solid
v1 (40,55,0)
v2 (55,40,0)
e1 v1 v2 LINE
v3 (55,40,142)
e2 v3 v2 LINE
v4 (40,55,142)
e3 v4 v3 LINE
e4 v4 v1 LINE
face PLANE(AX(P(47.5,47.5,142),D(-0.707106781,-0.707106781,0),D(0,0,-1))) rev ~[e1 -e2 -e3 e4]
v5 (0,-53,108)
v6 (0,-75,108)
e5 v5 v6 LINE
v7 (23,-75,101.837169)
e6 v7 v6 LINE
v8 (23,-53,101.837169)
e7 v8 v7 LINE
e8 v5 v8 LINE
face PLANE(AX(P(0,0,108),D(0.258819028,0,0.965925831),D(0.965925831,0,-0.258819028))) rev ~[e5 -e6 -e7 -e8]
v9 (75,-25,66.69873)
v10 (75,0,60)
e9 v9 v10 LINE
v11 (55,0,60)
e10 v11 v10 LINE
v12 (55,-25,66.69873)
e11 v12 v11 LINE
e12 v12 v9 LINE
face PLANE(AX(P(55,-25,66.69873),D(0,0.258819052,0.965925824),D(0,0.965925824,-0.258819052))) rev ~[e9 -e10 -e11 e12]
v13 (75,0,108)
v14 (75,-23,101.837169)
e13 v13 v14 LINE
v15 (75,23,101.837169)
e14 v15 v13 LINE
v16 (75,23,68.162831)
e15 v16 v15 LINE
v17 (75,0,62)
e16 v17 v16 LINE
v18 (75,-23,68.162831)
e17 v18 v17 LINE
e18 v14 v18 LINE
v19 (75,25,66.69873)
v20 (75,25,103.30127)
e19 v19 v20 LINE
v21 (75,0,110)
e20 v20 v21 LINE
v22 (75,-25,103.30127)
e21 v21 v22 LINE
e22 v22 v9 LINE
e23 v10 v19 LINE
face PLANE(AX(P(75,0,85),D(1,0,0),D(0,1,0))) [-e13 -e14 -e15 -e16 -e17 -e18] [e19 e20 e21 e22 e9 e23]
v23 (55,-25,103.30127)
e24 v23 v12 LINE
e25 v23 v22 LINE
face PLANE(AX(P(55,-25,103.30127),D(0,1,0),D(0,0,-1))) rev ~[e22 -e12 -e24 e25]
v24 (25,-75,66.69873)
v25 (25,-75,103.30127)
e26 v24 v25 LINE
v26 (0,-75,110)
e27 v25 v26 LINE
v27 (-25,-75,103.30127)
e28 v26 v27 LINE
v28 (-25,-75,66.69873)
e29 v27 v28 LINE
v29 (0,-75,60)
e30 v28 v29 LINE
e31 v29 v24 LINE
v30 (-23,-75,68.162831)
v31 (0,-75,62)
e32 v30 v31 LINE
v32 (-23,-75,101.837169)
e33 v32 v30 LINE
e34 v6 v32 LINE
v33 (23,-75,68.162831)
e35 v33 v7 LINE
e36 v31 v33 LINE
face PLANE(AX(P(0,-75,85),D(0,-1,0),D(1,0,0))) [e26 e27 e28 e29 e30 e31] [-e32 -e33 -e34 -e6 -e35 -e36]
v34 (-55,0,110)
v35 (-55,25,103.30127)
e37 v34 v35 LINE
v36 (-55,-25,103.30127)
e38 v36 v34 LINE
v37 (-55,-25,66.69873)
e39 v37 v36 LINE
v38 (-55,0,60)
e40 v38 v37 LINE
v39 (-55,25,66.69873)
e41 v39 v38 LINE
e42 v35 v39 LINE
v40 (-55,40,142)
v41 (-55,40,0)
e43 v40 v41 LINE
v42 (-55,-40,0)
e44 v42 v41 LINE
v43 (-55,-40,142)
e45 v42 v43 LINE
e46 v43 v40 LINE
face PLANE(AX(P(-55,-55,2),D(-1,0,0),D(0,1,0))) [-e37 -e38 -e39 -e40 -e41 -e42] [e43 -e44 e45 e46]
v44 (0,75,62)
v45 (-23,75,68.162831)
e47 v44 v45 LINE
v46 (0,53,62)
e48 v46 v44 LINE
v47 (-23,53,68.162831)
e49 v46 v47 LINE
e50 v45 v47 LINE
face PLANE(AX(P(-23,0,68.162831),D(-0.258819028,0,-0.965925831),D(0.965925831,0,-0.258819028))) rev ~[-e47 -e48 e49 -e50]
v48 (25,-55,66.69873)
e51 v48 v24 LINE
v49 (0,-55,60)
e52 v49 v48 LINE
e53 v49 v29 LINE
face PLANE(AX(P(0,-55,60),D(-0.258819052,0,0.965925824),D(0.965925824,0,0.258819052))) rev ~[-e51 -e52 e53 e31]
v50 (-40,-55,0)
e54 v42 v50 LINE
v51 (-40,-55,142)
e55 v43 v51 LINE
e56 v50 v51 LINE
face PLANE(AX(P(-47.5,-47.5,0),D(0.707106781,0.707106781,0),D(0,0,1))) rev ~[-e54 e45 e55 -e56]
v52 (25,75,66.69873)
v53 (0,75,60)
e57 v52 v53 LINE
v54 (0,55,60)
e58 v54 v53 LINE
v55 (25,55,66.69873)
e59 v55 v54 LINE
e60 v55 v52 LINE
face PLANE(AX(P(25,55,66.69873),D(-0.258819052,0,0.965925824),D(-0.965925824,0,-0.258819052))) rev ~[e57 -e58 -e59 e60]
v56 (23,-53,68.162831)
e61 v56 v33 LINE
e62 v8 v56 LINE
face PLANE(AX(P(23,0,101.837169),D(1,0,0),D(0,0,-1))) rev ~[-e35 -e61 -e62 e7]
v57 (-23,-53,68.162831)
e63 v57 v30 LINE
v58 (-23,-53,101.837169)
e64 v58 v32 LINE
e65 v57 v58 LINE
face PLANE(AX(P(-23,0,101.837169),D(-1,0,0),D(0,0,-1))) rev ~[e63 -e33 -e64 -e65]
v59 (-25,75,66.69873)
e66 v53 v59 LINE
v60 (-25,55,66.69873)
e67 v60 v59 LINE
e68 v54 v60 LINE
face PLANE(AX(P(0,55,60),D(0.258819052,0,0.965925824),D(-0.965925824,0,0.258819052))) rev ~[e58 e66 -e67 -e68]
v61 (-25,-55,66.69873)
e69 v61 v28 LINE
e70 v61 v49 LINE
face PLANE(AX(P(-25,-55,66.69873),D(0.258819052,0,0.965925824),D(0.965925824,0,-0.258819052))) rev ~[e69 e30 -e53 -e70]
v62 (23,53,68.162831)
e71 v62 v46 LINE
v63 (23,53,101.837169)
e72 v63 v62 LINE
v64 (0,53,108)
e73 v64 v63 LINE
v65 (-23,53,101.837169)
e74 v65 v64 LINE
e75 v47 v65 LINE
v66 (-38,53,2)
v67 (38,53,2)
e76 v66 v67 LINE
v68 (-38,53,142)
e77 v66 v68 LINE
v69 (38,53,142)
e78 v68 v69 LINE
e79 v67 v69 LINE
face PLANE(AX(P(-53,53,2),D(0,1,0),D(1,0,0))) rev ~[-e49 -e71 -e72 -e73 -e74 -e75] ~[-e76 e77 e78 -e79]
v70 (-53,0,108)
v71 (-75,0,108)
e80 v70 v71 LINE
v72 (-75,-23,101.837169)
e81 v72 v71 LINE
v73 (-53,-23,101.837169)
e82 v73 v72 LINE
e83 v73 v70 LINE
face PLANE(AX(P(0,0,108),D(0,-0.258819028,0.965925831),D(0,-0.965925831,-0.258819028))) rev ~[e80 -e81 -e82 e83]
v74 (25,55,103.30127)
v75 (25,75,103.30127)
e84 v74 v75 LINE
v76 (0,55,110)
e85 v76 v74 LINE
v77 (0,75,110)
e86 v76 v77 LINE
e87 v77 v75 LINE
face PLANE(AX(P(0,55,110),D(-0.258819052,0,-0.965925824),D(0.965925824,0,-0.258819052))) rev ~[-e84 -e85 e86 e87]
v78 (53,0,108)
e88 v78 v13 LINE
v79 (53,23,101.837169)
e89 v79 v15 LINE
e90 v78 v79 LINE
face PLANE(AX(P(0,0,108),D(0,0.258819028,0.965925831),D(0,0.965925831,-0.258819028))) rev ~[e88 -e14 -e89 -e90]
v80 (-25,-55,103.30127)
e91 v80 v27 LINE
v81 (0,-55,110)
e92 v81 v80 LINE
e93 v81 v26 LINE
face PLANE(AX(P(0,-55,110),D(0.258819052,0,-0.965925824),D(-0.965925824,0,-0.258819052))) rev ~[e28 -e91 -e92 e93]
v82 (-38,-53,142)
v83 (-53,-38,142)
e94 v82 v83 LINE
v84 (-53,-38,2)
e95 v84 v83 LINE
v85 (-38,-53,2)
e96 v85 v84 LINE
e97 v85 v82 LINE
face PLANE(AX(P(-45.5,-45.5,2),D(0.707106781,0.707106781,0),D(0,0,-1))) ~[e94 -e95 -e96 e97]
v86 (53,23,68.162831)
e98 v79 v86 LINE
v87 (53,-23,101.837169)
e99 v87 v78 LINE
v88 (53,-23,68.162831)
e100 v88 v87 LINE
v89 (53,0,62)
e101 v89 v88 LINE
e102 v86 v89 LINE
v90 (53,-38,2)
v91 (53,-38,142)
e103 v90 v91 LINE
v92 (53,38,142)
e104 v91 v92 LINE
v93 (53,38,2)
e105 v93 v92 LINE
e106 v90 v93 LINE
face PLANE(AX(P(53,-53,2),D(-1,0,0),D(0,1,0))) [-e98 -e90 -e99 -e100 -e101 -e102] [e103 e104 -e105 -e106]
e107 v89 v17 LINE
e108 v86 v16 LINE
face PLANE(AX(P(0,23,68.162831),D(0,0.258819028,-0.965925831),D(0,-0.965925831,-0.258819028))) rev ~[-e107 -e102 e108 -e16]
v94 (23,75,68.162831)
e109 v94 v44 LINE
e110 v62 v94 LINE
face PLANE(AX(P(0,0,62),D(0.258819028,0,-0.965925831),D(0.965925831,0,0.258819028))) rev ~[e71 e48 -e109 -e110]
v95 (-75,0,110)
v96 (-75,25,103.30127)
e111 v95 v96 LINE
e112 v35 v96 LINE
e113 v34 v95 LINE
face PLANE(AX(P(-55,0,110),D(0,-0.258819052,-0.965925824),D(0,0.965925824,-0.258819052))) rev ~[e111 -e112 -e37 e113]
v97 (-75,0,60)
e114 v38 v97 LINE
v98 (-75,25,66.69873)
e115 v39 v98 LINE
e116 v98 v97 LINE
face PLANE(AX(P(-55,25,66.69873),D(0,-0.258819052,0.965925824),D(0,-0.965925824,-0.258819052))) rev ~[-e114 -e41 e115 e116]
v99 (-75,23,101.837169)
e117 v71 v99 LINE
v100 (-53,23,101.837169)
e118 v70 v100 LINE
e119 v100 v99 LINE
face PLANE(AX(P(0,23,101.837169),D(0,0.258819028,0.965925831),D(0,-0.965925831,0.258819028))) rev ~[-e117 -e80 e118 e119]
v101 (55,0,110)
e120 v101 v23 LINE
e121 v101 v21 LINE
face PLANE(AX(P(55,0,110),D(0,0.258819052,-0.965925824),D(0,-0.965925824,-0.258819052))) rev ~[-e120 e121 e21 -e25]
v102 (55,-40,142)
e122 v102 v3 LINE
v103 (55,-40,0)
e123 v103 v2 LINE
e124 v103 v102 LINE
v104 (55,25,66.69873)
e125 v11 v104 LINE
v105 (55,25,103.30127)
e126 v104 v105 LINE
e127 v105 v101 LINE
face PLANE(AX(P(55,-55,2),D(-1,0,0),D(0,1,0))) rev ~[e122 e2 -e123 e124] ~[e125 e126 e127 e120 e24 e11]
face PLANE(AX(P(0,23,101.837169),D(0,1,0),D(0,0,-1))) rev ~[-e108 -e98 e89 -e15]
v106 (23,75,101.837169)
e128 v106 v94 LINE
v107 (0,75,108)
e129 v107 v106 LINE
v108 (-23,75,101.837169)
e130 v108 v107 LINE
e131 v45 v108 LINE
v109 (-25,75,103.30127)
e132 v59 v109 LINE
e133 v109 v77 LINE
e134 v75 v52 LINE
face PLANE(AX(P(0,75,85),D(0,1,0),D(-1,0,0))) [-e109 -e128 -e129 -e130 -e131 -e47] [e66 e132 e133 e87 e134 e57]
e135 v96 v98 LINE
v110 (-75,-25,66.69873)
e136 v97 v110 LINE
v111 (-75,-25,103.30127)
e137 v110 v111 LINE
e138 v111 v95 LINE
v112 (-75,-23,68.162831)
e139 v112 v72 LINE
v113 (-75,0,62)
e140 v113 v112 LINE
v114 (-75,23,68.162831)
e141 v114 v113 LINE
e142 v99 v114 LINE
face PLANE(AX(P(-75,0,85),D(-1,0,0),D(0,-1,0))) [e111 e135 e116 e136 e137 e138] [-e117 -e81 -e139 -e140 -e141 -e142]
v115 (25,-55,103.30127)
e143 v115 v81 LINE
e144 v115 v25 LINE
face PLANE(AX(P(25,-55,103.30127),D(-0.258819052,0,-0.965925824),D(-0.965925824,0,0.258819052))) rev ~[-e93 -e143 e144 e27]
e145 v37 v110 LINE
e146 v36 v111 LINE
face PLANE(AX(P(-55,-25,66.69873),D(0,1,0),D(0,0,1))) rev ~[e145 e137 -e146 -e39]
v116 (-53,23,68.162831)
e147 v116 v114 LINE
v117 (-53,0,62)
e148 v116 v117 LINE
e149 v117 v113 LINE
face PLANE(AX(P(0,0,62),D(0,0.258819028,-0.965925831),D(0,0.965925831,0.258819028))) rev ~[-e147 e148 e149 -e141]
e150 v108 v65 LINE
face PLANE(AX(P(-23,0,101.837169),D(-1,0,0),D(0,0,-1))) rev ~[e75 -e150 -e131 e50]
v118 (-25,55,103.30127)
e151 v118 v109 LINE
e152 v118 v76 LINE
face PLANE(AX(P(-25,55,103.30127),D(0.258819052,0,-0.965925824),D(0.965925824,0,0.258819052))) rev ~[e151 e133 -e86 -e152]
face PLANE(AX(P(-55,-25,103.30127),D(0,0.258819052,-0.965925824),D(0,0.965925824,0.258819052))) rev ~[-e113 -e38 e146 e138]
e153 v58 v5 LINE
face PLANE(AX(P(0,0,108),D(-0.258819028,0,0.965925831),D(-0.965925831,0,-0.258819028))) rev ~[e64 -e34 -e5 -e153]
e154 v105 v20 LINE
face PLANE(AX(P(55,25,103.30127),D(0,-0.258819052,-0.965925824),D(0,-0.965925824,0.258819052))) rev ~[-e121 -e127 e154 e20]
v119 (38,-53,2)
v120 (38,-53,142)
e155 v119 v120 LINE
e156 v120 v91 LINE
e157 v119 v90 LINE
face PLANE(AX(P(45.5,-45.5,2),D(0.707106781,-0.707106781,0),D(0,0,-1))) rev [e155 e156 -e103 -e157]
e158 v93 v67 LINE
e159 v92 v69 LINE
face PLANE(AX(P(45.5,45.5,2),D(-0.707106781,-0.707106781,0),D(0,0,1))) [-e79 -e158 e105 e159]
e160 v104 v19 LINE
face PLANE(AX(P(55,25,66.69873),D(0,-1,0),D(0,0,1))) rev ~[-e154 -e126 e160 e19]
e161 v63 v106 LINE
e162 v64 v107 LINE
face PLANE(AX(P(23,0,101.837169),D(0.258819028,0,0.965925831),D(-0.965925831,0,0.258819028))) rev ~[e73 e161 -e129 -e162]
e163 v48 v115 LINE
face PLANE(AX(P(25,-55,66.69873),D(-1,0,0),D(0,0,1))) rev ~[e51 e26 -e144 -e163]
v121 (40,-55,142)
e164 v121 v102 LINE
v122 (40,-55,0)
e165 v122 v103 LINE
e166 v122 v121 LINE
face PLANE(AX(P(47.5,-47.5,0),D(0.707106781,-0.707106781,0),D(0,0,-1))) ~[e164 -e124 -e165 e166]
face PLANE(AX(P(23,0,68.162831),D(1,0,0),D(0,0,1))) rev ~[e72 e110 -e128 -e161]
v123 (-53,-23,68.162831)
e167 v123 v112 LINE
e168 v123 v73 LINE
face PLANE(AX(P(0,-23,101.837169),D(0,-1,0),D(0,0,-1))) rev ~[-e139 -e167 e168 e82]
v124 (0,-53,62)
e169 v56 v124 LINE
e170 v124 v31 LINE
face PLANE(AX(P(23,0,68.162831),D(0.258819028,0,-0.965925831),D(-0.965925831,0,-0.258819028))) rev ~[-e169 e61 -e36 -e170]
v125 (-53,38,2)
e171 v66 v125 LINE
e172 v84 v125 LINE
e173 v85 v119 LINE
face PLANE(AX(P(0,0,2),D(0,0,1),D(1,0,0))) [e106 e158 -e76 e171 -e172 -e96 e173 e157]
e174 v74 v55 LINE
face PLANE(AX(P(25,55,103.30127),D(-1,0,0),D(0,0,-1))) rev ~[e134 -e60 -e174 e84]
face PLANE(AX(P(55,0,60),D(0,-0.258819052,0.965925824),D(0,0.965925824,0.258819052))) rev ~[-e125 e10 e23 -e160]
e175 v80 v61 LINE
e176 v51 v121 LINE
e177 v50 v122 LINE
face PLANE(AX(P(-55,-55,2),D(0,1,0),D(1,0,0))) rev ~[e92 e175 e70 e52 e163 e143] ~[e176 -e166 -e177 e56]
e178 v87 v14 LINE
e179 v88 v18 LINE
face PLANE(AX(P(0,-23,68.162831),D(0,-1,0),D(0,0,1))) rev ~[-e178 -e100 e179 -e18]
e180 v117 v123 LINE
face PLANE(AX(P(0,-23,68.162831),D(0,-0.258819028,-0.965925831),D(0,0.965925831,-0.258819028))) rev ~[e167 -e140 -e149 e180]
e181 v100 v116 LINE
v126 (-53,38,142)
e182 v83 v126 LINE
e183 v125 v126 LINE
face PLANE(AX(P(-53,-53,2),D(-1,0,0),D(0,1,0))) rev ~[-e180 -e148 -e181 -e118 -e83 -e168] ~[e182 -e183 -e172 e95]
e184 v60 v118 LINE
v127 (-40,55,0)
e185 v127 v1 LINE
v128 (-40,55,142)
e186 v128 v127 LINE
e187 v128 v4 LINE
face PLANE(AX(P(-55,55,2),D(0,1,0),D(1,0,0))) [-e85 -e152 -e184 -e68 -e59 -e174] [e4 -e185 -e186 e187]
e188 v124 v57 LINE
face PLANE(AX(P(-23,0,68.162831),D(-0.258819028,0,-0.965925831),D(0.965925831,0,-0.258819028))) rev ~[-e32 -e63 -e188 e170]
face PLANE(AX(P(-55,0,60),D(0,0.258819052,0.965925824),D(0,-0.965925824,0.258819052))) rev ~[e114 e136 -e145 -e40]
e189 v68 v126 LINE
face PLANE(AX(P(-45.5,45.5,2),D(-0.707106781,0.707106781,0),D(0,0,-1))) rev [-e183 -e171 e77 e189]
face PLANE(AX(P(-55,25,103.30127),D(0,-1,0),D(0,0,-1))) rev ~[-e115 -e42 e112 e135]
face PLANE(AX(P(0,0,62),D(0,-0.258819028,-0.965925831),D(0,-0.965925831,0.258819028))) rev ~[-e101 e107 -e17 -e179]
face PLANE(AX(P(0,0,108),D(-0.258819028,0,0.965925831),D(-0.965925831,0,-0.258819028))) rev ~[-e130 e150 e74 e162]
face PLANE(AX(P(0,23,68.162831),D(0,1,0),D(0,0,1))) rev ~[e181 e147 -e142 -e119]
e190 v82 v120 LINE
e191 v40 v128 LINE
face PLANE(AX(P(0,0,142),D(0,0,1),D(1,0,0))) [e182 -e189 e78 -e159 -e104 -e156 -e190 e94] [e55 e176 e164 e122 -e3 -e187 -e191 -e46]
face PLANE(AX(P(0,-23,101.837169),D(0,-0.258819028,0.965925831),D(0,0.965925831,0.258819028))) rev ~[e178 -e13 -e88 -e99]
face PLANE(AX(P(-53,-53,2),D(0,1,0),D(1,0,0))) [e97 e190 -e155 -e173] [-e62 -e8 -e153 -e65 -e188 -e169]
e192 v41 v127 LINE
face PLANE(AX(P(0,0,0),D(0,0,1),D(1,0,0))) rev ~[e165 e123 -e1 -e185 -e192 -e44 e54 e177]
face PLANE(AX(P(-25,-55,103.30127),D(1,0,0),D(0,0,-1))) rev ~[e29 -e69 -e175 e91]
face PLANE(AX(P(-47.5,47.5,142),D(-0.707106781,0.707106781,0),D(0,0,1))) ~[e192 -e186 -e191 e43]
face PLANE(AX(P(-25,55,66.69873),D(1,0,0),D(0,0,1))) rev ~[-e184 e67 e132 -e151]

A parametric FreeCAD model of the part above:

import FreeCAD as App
import Part
import Sketcher

V = App.Vector
Q = App.Units.Quantity


def edges_at(feature, points):
    """Names of the edges that pass closest to the given points."""
    edges = feature.Shape.Edges
    near = lambda p: min(range(len(edges)), key=lambda i: edges[i].distToShape(Part.Vertex(*p))[0])
    return sorted({f"Edge{near(p) + 1}" for p in points})


def add_polygon(sketch, points):
    """Adds a closed chain of lines whose ends are joined by coincident constraints."""
    first, n = sketch.GeometryCount, len(points)
    for a, b in zip(points, points[1:] + points[:1]):
        sketch.addGeometry(Part.LineSegment(App.Vector(*a, 0), App.Vector(*b, 0)), False)
    for i in range(n):
        sketch.addConstraint(Sketcher.Constraint("Coincident", first + i, 2, first + (i + 1) % n, 1))

doc = App.newDocument("Part")
body = doc.addObject("PartDesign::Body", "Body")

sketch1 = doc.addObject("Sketcher::SketchObject", "Sketch")
body.addObject(sketch1)
sketch1.AttachmentSupport = (doc.XZ_Plane, [""])
sketch1.MapMode = "FlatFace"
add_polygon(sketch1, [(-23, 102), (-23, 68), (0, 62), (23, 68), (23, 102), (0, 108)])
sketch1.addConstraint([
    Sketcher.Constraint("Vertical", 0),
    Sketcher.Constraint("Vertical", 3),
    Sketcher.Constraint("Symmetric", 0, 2, 2, 2, -2),
    Sketcher.Constraint("PointOnObject", 1, 2, -2),
    Sketcher.Constraint("PointOnObject", 4, 2, -2),
    Sketcher.Constraint("Parallel", 1, 4),
    Sketcher.Constraint("Parallel", 2, 5),
    Sketcher.Constraint("Angle", 1, Q("-14.999999 deg")),
    Sketcher.Constraint("DistanceX", 0, 2, -1, 1, 23.0),
    Sketcher.Constraint("DistanceY", -1, 1, 1, 2, 62.0),
    Sketcher.Constraint("DistanceY", -1, 1, 4, 2, 108.0),
])
pad1 = doc.addObject("PartDesign::Pad", "Pad")
body.addObject(pad1)
pad1.Profile = sketch1
pad1.Length = 100
doc.recompute()

polarpattern = doc.addObject("PartDesign::PolarPattern", "PolarPattern")
body.addObject(polarpattern)
polarpattern.Originals = [pad1]
polarpattern.Axis = (doc.Z_Axis, [""])
polarpattern.Angle = 360
polarpattern.Occurrences = 4
body.Tip = polarpattern
body2 = doc.addObject("PartDesign::Body", "Body001")

sketch2 = doc.addObject("Sketcher::SketchObject", "Sketch001")
body2.addObject(sketch2)
sketch2.AttachmentSupport = (doc.getObject("XY_Plane001"), [""])
sketch2.MapMode = "FlatFace"
add_polygon(sketch2, [(-55, 55), (-55, -55), (55, -55), (55, 55)])
sketch2.addConstraint([
    Sketcher.Constraint("Vertical", 0),
    Sketcher.Constraint("Horizontal", 1),
    Sketcher.Constraint("Vertical", 2),
    Sketcher.Constraint("Horizontal", 3),
    Sketcher.Constraint("Symmetric", 0, 2, 2, 2, -1, 1),
    Sketcher.Constraint("Equal", 3, 0),
    Sketcher.Constraint("DistanceX", 1, 1, 1, 2, 110.0),
])
pad2 = doc.addObject("PartDesign::Pad", "Pad001")
body2.addObject(pad2)
pad2.Profile = sketch2
pad2.Length = 2

sketch3 = doc.addObject("Sketcher::SketchObject", "Sketch002")
body2.addObject(sketch3)
sketch3.AttachmentSupport = (doc.getObject("XY_Plane001"), [""])
sketch3.MapMode = "FlatFace"
sketch3.AttachmentOffset = App.Placement(V(0, 0, 2), App.Rotation())
add_polygon(sketch3, [(-55, 55), (-55, -55), (55, -55), (55, 55)])
add_polygon(sketch3, [(53, -53), (-53, -53), (-53, 53), (53, 53)])
sketch3.addConstraint([
    Sketcher.Constraint("Vertical", 0),
    Sketcher.Constraint("Horizontal", 1),
    Sketcher.Constraint("Vertical", 2),
    Sketcher.Constraint("Horizontal", 3),
    Sketcher.Constraint("Horizontal", 4),
    Sketcher.Constraint("Vertical", 5),
    Sketcher.Constraint("Horizontal", 6),
    Sketcher.Constraint("Vertical", 7),
    Sketcher.Constraint("Symmetric", 0, 2, 2, 2, -1, 1),
    Sketcher.Constraint("Symmetric", 4, 2, 6, 2, -1, 1),
    Sketcher.Constraint("Equal", 3, 0),
    Sketcher.Constraint("Equal", 6, 5),
    Sketcher.Constraint("DistanceX", 1, 1, 1, 2, 110.0),
    Sketcher.Constraint("DistanceX", 4, 2, 4, 1, 106.0),
])
pad3 = doc.addObject("PartDesign::Pad", "Pad002")
body2.addObject(pad3)
pad3.Profile = sketch3
pad3.Length = 140

sketch4 = doc.addObject("Sketcher::SketchObject", "Sketch003")
body2.addObject(sketch4)
sketch4.AttachmentSupport = (doc.getObject("XZ_Plane001"), [""])
sketch4.MapMode = "FlatFace"
sketch4.AttachmentOffset = App.Placement(V(0, 0, 55), App.Rotation())
add_polygon(sketch4, [(-25, 67), (0, 60), (25, 67), (25, 103), (0, 110), (-25, 103)])
sketch4.addConstraint([
    Sketcher.Constraint("Vertical", 2),
    Sketcher.Constraint("Vertical", 5),
    Sketcher.Constraint("Symmetric", 2, 2, 4, 2, -2),
    Sketcher.Constraint("PointOnObject", 0, 2, -2),
    Sketcher.Constraint("PointOnObject", 3, 2, -2),
    Sketcher.Constraint("Parallel", 0, 3),
    Sketcher.Constraint("Parallel", 1, 4),
    Sketcher.Constraint("Angle", 0, Q("-15 deg")),
    Sketcher.Constraint("DistanceY", -1, 1, 0, 2, 60.0),
    Sketcher.Constraint("DistanceX", -1, 1, 1, 2, 25.0),
    Sketcher.Constraint("DistanceY", -1, 1, 3, 2, 110.0),
])
pad4 = doc.addObject("PartDesign::Pad", "Pad003")
body2.addObject(pad4)
pad4.Profile = sketch4
pad4.Length = 20
doc.recompute()

polarpattern2 = doc.addObject("PartDesign::PolarPattern", "PolarPattern001")
body2.addObject(polarpattern2)
polarpattern2.Originals = [pad4]
polarpattern2.Axis = (doc.getObject("Z_Axis001"), [""])
polarpattern2.Angle = 360
polarpattern2.Occurrences = 4
body2.Tip = polarpattern2
doc.recompute()

boolean = doc.addObject("PartDesign::Boolean", "Boolean")
body2.addObject(boolean)
boolean.Type = "Cut"
boolean.addObjects([body])
doc.recompute()

chamfer = doc.addObject("PartDesign::Chamfer", "Chamfer")
body2.addObject(chamfer)
chamfer.Base = (boolean, edges_at(boolean, [
    (-55, 55, 71),
    (55, 55, 71),
    (-55, -55, 71),
    (55, -55, 71),
    (-55, 55, 71),
    (55, 55, 71),
    (-55, -55, 71),
    (55, -55, 71),
    (-53, 53, 72),
    (53, 53, 72),
    (53, -53, 72),
    (-53, -53, 72),
]))
chamfer.Size = 15

doc.recompute()
